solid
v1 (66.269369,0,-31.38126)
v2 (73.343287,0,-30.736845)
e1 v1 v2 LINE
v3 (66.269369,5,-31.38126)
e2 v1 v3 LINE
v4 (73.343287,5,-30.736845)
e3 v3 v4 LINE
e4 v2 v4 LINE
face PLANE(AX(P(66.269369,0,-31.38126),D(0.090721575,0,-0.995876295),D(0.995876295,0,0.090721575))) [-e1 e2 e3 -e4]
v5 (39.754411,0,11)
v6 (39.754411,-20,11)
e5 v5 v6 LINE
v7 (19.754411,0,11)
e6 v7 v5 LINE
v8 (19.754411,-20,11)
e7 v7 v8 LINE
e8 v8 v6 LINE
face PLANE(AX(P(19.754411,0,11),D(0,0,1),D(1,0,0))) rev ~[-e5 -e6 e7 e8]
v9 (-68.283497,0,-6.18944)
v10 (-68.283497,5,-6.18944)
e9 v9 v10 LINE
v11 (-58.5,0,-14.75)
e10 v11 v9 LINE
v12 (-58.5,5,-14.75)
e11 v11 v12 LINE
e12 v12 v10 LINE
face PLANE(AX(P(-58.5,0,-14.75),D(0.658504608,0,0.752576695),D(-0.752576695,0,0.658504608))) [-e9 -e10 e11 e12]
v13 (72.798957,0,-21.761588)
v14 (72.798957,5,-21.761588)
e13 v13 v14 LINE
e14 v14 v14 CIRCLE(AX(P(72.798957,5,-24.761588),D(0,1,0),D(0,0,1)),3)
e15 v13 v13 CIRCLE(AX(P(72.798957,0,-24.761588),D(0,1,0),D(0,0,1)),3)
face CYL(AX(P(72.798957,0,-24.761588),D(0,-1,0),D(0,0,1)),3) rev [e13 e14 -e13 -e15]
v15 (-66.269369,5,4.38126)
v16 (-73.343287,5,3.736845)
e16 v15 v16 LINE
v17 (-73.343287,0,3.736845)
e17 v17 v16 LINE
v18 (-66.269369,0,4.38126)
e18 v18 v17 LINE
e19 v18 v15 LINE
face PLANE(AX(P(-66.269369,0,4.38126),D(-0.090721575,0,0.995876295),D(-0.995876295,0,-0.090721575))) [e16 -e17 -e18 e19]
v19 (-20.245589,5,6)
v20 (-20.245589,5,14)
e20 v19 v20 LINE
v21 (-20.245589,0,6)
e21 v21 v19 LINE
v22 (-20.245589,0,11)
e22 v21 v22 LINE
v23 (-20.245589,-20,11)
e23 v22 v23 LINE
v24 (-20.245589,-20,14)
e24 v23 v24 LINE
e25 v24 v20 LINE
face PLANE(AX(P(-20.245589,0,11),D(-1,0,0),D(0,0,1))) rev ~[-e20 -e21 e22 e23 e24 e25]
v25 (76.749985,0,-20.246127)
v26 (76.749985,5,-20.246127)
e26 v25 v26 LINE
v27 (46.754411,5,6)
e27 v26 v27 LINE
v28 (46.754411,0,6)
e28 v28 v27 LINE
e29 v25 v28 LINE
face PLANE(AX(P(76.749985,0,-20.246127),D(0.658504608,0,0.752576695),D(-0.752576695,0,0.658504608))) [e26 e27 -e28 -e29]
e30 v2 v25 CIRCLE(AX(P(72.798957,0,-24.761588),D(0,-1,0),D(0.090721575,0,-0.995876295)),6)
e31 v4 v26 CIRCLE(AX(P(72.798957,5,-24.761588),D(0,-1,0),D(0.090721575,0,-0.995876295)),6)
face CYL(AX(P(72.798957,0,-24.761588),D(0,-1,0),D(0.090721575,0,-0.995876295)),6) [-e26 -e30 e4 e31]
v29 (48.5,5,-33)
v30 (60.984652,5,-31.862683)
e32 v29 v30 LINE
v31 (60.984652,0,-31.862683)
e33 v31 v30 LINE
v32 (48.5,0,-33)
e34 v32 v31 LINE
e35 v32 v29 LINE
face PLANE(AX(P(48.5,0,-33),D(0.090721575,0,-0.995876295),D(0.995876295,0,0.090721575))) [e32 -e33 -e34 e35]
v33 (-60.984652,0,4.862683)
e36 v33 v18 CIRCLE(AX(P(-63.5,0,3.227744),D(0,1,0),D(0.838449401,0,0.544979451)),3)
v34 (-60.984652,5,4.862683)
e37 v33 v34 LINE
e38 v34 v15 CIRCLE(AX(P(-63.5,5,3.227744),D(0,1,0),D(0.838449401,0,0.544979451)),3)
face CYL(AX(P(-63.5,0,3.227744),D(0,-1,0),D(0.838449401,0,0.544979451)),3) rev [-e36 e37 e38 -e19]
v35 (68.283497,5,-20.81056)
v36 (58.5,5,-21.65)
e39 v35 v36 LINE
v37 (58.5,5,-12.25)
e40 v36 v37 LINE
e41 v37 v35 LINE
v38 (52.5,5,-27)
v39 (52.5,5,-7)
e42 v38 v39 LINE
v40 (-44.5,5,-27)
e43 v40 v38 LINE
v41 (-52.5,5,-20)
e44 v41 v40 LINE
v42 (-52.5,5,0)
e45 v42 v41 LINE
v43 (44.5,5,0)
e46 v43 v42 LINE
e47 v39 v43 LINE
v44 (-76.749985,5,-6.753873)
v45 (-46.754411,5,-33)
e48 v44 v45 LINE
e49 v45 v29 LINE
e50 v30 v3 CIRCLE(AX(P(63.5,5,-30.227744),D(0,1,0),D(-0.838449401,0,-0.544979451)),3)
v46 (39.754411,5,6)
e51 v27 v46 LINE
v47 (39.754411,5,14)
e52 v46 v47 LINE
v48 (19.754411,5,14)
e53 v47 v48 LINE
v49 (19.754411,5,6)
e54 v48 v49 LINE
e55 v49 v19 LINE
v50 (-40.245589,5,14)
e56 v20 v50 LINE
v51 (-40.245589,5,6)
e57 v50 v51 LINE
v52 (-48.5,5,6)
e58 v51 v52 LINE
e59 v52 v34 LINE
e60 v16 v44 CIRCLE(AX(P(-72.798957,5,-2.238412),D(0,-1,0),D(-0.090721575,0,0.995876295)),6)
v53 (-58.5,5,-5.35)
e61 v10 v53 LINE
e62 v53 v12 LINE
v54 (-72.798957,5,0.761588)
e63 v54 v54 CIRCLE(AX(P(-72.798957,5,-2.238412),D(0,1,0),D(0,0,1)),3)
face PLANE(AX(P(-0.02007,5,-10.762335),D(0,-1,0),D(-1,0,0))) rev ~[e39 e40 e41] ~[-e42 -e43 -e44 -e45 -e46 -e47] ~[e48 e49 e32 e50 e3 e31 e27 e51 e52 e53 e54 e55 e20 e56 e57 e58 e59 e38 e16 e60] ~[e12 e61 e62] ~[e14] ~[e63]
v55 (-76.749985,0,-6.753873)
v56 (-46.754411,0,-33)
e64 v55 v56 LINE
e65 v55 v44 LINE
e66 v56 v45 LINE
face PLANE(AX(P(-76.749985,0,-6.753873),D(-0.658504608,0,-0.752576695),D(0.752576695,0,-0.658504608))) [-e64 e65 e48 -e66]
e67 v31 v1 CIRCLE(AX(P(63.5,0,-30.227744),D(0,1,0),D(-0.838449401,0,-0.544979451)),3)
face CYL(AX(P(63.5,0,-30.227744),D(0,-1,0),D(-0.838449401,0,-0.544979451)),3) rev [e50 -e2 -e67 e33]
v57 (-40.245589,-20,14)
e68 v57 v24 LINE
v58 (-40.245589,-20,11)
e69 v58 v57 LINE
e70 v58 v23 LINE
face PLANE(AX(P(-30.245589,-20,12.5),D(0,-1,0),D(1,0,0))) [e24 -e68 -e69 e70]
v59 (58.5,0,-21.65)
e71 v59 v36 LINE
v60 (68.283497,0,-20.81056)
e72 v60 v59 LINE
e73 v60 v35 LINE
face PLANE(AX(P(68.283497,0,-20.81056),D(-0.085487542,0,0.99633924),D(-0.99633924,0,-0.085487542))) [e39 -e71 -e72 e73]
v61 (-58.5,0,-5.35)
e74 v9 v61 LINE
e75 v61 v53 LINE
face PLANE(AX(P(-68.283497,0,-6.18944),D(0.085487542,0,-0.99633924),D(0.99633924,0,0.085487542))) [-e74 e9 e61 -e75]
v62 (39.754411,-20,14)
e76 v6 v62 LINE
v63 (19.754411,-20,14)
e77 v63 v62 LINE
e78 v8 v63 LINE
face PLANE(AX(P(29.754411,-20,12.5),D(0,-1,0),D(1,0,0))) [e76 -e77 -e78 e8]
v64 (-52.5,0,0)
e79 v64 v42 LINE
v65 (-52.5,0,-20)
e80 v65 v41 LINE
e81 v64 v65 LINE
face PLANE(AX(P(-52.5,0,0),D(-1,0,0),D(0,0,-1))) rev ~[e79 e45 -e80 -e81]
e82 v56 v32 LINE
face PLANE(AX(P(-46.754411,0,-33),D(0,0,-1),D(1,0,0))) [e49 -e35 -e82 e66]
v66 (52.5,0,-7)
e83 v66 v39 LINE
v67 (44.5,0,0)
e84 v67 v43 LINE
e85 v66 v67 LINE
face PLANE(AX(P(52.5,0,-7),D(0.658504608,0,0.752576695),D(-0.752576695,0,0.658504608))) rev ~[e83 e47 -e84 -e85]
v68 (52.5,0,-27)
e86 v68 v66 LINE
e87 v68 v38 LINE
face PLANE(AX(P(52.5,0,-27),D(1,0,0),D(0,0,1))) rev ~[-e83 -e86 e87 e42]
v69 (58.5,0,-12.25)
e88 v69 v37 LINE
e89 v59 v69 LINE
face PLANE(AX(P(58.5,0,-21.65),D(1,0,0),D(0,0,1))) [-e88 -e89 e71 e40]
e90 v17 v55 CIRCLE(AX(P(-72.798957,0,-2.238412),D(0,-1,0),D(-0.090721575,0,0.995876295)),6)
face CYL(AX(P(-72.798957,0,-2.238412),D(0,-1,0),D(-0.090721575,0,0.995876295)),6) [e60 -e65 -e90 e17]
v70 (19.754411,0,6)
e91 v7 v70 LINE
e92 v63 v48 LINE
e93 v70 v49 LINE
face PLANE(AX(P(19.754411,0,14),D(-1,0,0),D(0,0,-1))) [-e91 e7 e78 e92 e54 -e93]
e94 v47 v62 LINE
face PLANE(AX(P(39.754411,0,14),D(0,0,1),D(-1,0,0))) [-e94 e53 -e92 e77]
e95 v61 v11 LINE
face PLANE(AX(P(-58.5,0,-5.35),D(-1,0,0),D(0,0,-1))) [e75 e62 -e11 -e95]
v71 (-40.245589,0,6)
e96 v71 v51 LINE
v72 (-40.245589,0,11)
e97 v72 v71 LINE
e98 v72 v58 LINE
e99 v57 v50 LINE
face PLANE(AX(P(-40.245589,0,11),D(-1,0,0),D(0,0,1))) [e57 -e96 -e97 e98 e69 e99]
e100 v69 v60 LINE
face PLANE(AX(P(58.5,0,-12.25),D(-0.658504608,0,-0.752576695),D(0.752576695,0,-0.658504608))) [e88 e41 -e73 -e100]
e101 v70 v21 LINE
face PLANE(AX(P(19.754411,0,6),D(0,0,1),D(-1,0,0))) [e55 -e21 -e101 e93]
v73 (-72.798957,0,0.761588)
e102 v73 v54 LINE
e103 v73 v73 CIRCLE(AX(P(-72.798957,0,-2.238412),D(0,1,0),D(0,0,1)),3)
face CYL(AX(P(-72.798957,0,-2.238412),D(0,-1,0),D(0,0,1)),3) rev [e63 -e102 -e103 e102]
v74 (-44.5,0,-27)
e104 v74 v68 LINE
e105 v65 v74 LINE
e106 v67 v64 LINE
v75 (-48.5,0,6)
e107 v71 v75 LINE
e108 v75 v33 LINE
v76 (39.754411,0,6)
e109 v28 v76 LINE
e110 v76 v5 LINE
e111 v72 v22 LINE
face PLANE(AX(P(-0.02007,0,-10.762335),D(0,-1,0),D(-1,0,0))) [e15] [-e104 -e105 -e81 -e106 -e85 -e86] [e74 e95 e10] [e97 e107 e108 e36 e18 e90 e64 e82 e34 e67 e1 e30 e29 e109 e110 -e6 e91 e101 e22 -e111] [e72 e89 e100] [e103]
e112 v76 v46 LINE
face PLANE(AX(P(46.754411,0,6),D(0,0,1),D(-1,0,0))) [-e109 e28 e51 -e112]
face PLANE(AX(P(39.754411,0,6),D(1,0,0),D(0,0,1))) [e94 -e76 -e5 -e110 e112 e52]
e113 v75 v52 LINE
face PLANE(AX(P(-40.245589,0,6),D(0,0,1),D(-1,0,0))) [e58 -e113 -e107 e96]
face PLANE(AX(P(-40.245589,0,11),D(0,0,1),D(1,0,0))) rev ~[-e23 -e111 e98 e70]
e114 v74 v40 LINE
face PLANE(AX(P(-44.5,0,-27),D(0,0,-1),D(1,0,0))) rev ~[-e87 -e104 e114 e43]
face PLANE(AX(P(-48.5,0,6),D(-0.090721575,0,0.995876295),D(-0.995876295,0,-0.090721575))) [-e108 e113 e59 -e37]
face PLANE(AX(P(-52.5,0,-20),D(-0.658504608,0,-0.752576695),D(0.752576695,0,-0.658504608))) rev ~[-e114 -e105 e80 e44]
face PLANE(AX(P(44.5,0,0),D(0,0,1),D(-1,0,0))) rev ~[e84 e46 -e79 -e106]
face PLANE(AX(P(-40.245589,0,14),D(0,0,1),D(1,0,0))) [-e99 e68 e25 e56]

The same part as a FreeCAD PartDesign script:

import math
import FreeCAD as App
import Part
import Sketcher

V = App.Vector
Q = App.Units.Quantity


def add_polygon(sketch, points):
    """Adds a closed chain of lines whose ends are joined by coincident constraints."""
    first, n = sketch.GeometryCount, len(points)
    for a, b in zip(points, points[1:] + points[:1]):
        sketch.addGeometry(Part.LineSegment(App.Vector(*a, 0), App.Vector(*b, 0)), False)
    for i in range(n):
        sketch.addConstraint(Sketcher.Constraint("Coincident", first + i, 2, first + (i + 1) % n, 1))

doc = App.newDocument("Part")
body = doc.addObject("PartDesign::Body", "Body")

# Sketch on XZ plane
sketch1 = doc.addObject("Sketcher::SketchObject", "Sketch")
body.addObject(sketch1)
sketch1.AttachmentSupport = (doc.XZ_Plane, [""])
sketch1.MapMode = "FlatFace"
sketch1.addGeometry(Part.LineSegment(V(48.5, -33, 0), V(-46.8, -33, 0)), False)  # 0
sketch1.addGeometry(Part.LineSegment(V(-46.8, -33, 0), V(-76.7, -6.8, 0)), False)  # 1
sketch1.addGeometry(Part.ArcOfCircle(Part.Circle(V(-72.8, -2.2, 0), V(0, 0, 1), 6), math.radians(95), math.radians(229)), False)  # 2
sketch1.addGeometry(Part.LineSegment(V(-73.3, 3.7, 0), V(-66.3, 4.4, 0)), False)  # 3
sketch1.addGeometry(Part.ArcOfCircle(Part.Circle(V(-63.5, 3.2, 0), V(0, 0, 1), 3), math.radians(157), math.radians(393)), False)  # 4
sketch1.addGeometry(Part.LineSegment(V(-61, 4.9, 0), V(-48.5, 6, 0)), False)  # 5
sketch1.addGeometry(Part.LineSegment(V(-48.5, 6, 0), V(-40.2, 6, 0)), False)  # 6
sketch1.addGeometry(Part.LineSegment(V(-40.2, 6, 0), V(-40.2, 14, 0)), False)  # 7
sketch1.addGeometry(Part.LineSegment(V(-40.2, 14, 0), V(-20.2, 14, 0)), False)  # 8
sketch1.addGeometry(Part.LineSegment(V(-20.2, 14, 0), V(-20.2, 6, 0)), False)  # 9
sketch1.addGeometry(Part.LineSegment(V(-20.2, 6, 0), V(19.8, 6, 0)), False)  # 10
sketch1.addGeometry(Part.LineSegment(V(19.8, 6, 0), V(19.8, 14, 0)), False)  # 11
sketch1.addGeometry(Part.LineSegment(V(19.8, 14, 0), V(39.8, 14, 0)), False)  # 12
sketch1.addGeometry(Part.LineSegment(V(39.8, 14, 0), V(39.8, 6, 0)), False)  # 13
sketch1.addGeometry(Part.LineSegment(V(39.8, 6, 0), V(46.8, 6, 0)), False)  # 14
sketch1.addGeometry(Part.LineSegment(V(46.8, 6, 0), V(76.7, -20.2, 0)), False)  # 15
sketch1.addGeometry(Part.ArcOfCircle(Part.Circle(V(72.8, -24.8, 0), V(0, 0, 1), 6), math.radians(-85), math.radians(49)), False)  # 16
sketch1.addGeometry(Part.LineSegment(V(73.3, -30.7, 0), V(66.3, -31.4, 0)), False)  # 17
sketch1.addGeometry(Part.ArcOfCircle(Part.Circle(V(63.5, -30.2, 0), V(0, 0, 1), 3), math.radians(-23), math.radians(213)), False)  # 18
sketch1.addGeometry(Part.LineSegment(V(61, -31.9, 0), V(48.5, -33, 0)), False)  # 19
sketch1.addGeometry(Part.Circle(V(-72.8, -2.2, 0), V(0, 0, 1), 3), False)  # 20
add_polygon(sketch1, [(-58.5, -14.8), (-58.5, -5.3), (-68.3, -6.2)])  # lines 21-23
add_polygon(sketch1, [(58.5, -21.6), (68.3, -20.8), (58.5, -12.2)])  # lines 24-26
sketch1.addGeometry(Part.Circle(V(72.8, -24.8, 0), V(0, 0, 1), 3), False)  # 27
add_polygon(sketch1, [(-44.5, -27), (52.5, -27), (52.5, -7), (44.5, 0), (-52.5, 0), (-52.5, -20)])  # lines 28-33
sketch1.addConstraint([
    Sketcher.Constraint("Coincident", 0, 2, 1, 1),
    Sketcher.Constraint("Tangent", 1, 2, 2, 2),
    Sketcher.Constraint("Tangent", 2, 1, 3, 1),
    Sketcher.Constraint("Coincident", 3, 2, 4, 1),
    Sketcher.Constraint("Coincident", 4, 2, 5, 1),
    Sketcher.Constraint("Coincident", 5, 2, 6, 1),
    Sketcher.Constraint("Coincident", 6, 2, 7, 1),
    Sketcher.Constraint("Coincident", 7, 2, 8, 1),
    Sketcher.Constraint("Coincident", 8, 2, 9, 1),
    Sketcher.Constraint("Coincident", 9, 2, 10, 1),
    Sketcher.Constraint("Coincident", 10, 2, 11, 1),
    Sketcher.Constraint("Coincident", 11, 2, 12, 1),
    Sketcher.Constraint("Coincident", 12, 2, 13, 1),
    Sketcher.Constraint("Coincident", 13, 2, 14, 1),
    Sketcher.Constraint("Coincident", 14, 2, 15, 1),
    Sketcher.Constraint("Tangent", 15, 2, 16, 2),
    Sketcher.Constraint("Tangent", 16, 1, 17, 1),
    Sketcher.Constraint("Coincident", 17, 2, 18, 1),
    Sketcher.Constraint("Coincident", 18, 2, 19, 1),
    Sketcher.Constraint("Coincident", 19, 2, 0, 1),
    Sketcher.Constraint("Horizontal", 0),
    Sketcher.Constraint("Horizontal", 6),
    Sketcher.Constraint("Vertical", 7),
    Sketcher.Constraint("Horizontal", 8),
    Sketcher.Constraint("Vertical", 9),
    Sketcher.Constraint("Horizontal", 10),
    Sketcher.Constraint("Vertical", 11),
    Sketcher.Constraint("Horizontal", 12),
    Sketcher.Constraint("Vertical", 13),
    Sketcher.Constraint("Horizontal", 14),
    Sketcher.Constraint("Vertical", 21),
    Sketcher.Constraint("Vertical", 26),
    Sketcher.Constraint("Horizontal", 28),
    Sketcher.Constraint("Vertical", 29),
    Sketcher.Constraint("Horizontal", 31),
    Sketcher.Constraint("Vertical", 32),
    Sketcher.Constraint("Coincident", 20, 3, 2, 3),
    Sketcher.Constraint("Coincident", 27, 3, 16, 3),
    Sketcher.Constraint("Equal", 2, 16),
    Sketcher.Constraint("Equal", 4, 18),
    Sketcher.Constraint("Equal", 18, 20),
    Sketcher.Constraint("Equal", 20, 27),
    Sketcher.Constraint("PointOnObject", 30, 2, -1),
    Sketcher.Constraint("Parallel", 3, 5),
    Sketcher.Constraint("Parallel", 1, 15),
    Sketcher.Constraint("Parallel", 5, 17),
    Sketcher.Constraint("Parallel", 17, 19),
    Sketcher.Constraint("Parallel", 15, 23),
    Sketcher.Constraint("Parallel", 22, 24),
    Sketcher.Constraint("Parallel", 23, 25),
    Sketcher.Constraint("Parallel", 25, 30),
    Sketcher.Constraint("Parallel", 30, 33),
    Sketcher.Constraint("Horizontal", 6, 2, 9, 2),
    Sketcher.Constraint("Horizontal", 8, 2, 11, 2),
    Sketcher.Constraint("Horizontal", 10, 2, 13, 2),
    Sketcher.Constraint("Equal", 8, 12),
    Sketcher.Constraint("Equal", 28, 31),
    Sketcher.Constraint("Equal", 21, 26),
    Sketcher.Constraint("Equal", 12, 29),
    Sketcher.Constraint("Equal", 1, 15),
    Sketcher.Constraint("Equal", 3, 17),
    Sketcher.Constraint("Equal", 5, 19),
    Sketcher.Constraint("Diameter", 20, Q("6 mm")),
    Sketcher.Constraint("Radius", 2, Q("6 mm")),
    Sketcher.Constraint("DistanceX", 8, 1, 8, 2, Q("20 mm")),
    Sketcher.Constraint("DistanceX", 10, 1, 10, 2, Q("40 mm")),
    Sketcher.Constraint("DistanceX", 14, 1, 14, 2, Q("7 mm")),
    Sketcher.Constraint("DistanceX", 28, 1, 28, 2, Q("97 mm")),
    Sketcher.Constraint("DistanceY", 7, 1, 7, 2, Q("8 mm")),
    Sketcher.Constraint("Distance", 23, Q("13 mm")),
    Sketcher.Constraint("DistanceY", 21, 1, 21, 2, Q("9.4 mm")),
    Sketcher.Constraint("DistanceY", 0, 2, -1, 1, Q("33 mm")),
    Sketcher.Constraint("DistanceY", -1, 1, 5, 2, Q("6 mm")),
    Sketcher.Constraint("DistanceY", 28, 2, -1, 1, Q("27 mm")),
    Sketcher.Constraint("DistanceX", 4, 3, 18, 3, Q("127 mm")),
    Sketcher.Constraint("DistanceX", 4, 3, 5, 2, Q("15 mm")),
    Sketcher.Constraint("DistanceX", 19, 2, 18, 3, Q("15 mm")),
    Sketcher.Constraint("DistanceX", 4, 3, 21, 2, Q("5 mm")),
    Sketcher.Constraint("DistanceX", 25, 2, 18, 3, Q("5 mm")),
    Sketcher.Constraint("DistanceX", 19, 2, 28, 2, Q("4 mm")),
    Sketcher.Constraint("DistanceX", 30, 2, 29, 2, Q("8 mm")),
    Sketcher.Constraint("DistanceX", 4, 3, -1, 1, Q("63.5 mm")),
    Sketcher.Constraint("DistanceY", 21, 2, -1, 1, Q("5.35 mm")),
    Sketcher.Constraint("DistanceY", 25, 2, -1, 1, Q("12.25 mm")),
    Sketcher.Constraint("DistanceX", 0, 2, 0, 1, Q("95.254411 mm")),
    Sketcher.Constraint("DistanceY", 4, 3, 2, 1, Q("0.509101 mm")),
    Sketcher.Constraint("DistanceX", 1, 2, 2, 1, Q("3.406698 mm")),
    Sketcher.Constraint("DistanceY", 17, 2, 24, 2, Q("10.5707 mm")),
])
pad1 = doc.addObject("PartDesign::Pad", "Pad")
body.addObject(pad1)
pad1.Profile = sketch1
pad1.Length = 5
pad1.Reversed = True

# Sketch on XZ plane
sketch2 = doc.addObject("Sketcher::SketchObject", "Sketch001")
body.addObject(sketch2)
sketch2.AttachmentSupport = (doc.XZ_Plane, [""])
sketch2.MapMode = "FlatFace"
add_polygon(sketch2, [(-40.2, 14), (-40.2, 11), (-20.2, 11), (-20.2, 14)])  # lines 0-3
add_polygon(sketch2, [(19.8, 14), (19.8, 11), (39.8, 11), (39.8, 14)])  # lines 4-7
sketch2.addConstraint([
    Sketcher.Constraint("Vertical", 0),
    Sketcher.Constraint("Horizontal", 1),
    Sketcher.Constraint("Vertical", 2),
    Sketcher.Constraint("Horizontal", 3),
    Sketcher.Constraint("Vertical", 4),
    Sketcher.Constraint("Horizontal", 5),
    Sketcher.Constraint("Vertical", 6),
    Sketcher.Constraint("Horizontal", 7),
    Sketcher.Constraint("Horizontal", 1, 2, 4, 2),
    Sketcher.Constraint("Horizontal", 3, 2, 6, 2),
    Sketcher.Constraint("Equal", 3, 5),
    Sketcher.Constraint("DistanceX", 1, 1, 1, 2, Q("20 mm")),
    Sketcher.Constraint("DistanceY", 0, 2, 0, 1, Q("3 mm")),
    Sketcher.Constraint("DistanceY", -1, 1, 0, 2, Q("11 mm")),
    Sketcher.Constraint("DistanceX", 1, 2, 4, 2, Q("40 mm")),
    Sketcher.Constraint("DistanceX", 0, 2, -1, 1, Q("40.245589 mm")),
])
pad2 = doc.addObject("PartDesign::Pad", "Pad001")
body.addObject(pad2)
pad2.Profile = sketch2
pad2.Length = 20

doc.recompute()
